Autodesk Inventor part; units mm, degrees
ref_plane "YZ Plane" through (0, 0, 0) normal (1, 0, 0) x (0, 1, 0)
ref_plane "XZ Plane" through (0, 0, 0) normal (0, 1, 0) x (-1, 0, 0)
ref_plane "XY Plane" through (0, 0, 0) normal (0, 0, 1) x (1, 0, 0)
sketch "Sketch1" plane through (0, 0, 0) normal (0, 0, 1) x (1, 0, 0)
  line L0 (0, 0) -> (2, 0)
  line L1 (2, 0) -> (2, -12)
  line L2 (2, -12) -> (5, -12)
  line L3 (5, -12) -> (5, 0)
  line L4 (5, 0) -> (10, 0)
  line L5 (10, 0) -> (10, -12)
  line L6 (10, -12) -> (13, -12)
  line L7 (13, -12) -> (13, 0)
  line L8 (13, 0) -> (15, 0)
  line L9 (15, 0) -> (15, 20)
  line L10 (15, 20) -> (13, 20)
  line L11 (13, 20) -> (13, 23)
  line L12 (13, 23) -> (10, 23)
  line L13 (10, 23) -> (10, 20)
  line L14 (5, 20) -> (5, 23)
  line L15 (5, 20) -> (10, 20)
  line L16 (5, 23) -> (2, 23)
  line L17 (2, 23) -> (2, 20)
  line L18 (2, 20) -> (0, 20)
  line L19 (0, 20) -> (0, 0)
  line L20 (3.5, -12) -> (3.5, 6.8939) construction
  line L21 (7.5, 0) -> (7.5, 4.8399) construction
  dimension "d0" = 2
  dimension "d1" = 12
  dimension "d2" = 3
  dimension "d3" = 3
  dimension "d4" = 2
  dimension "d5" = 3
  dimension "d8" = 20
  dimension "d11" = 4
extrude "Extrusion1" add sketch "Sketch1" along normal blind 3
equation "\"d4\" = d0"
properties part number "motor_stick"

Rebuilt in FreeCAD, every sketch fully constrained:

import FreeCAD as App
import Part
import Sketcher

doc = App.newDocument("Part")
body = doc.addObject("PartDesign::Body", "Body")

sketch1 = body.newObject("Sketcher::SketchObject", "Sketch")
sketch1.AttachmentSupport = (doc.getObject("XY_Plane"), [""])
sketch1.MapMode = "FlatFace"
sketch1.addGeometry([
    Part.LineSegment(App.Vector(0, 20, 0), App.Vector(0, 0, 0)),
    Part.LineSegment(App.Vector(0, 0, 0), App.Vector(2, 0, 0)),
    Part.LineSegment(App.Vector(2, 0, 0), App.Vector(2, -12, 0)),
    Part.LineSegment(App.Vector(2, -12, 0), App.Vector(5, -12, 0)),
    Part.LineSegment(App.Vector(5, -12, 0), App.Vector(5, 0, 0)),
    Part.LineSegment(App.Vector(5, 0, 0), App.Vector(10, 0, 0)),
    Part.LineSegment(App.Vector(10, 0, 0), App.Vector(10, -12, 0)),
    Part.LineSegment(App.Vector(10, -12, 0), App.Vector(13, -12, 0)),
    Part.LineSegment(App.Vector(13, -12, 0), App.Vector(13, 0, 0)),
    Part.LineSegment(App.Vector(13, 0, 0), App.Vector(15, 0, 0)),
    Part.LineSegment(App.Vector(15, 0, 0), App.Vector(15, 20, 0)),
    Part.LineSegment(App.Vector(15, 20, 0), App.Vector(13, 20, 0)),
    Part.LineSegment(App.Vector(13, 20, 0), App.Vector(13, 23, 0)),
    Part.LineSegment(App.Vector(13, 23, 0), App.Vector(10, 23, 0)),
    Part.LineSegment(App.Vector(10, 23, 0), App.Vector(10, 20, 0)),
    Part.LineSegment(App.Vector(10, 20, 0), App.Vector(5, 20, 0)),
    Part.LineSegment(App.Vector(5, 20, 0), App.Vector(5, 23, 0)),
    Part.LineSegment(App.Vector(5, 23, 0), App.Vector(2, 23, 0)),
    Part.LineSegment(App.Vector(2, 23, 0), App.Vector(2, 20, 0)),
    Part.LineSegment(App.Vector(2, 20, 0), App.Vector(0, 20, 0)),
], False)
sketch1.addConstraint([
    Sketcher.Constraint("Coincident", 0, 2, 1, 1),
    Sketcher.Constraint("Coincident", 1, 2, 2, 1),
    Sketcher.Constraint("Coincident", 2, 2, 3, 1),
    Sketcher.Constraint("Coincident", 3, 2, 4, 1),
    Sketcher.Constraint("Coincident", 4, 2, 5, 1),
    Sketcher.Constraint("Coincident", 5, 2, 6, 1),
    Sketcher.Constraint("Coincident", 6, 2, 7, 1),
    Sketcher.Constraint("Coincident", 7, 2, 8, 1),
    Sketcher.Constraint("Coincident", 8, 2, 9, 1),
    Sketcher.Constraint("Coincident", 9, 2, 10, 1),
    Sketcher.Constraint("Coincident", 10, 2, 11, 1),
    Sketcher.Constraint("Coincident", 11, 2, 12, 1),
    Sketcher.Constraint("Coincident", 12, 2, 13, 1),
    Sketcher.Constraint("Coincident", 13, 2, 14, 1),
    Sketcher.Constraint("Coincident", 14, 2, 15, 1),
    Sketcher.Constraint("Coincident", 15, 2, 16, 1),
    Sketcher.Constraint("Coincident", 16, 2, 17, 1),
    Sketcher.Constraint("Coincident", 17, 2, 18, 1),
    Sketcher.Constraint("Coincident", 18, 2, 19, 1),
    Sketcher.Constraint("Coincident", 19, 2, 0, 1),
    Sketcher.Constraint("Vertical", 0),
    Sketcher.Constraint("Horizontal", 1),
    Sketcher.Constraint("Vertical", 2),
    Sketcher.Constraint("Horizontal", 3),
    Sketcher.Constraint("Vertical", 4),
    Sketcher.Constraint("Horizontal", 5),
    Sketcher.Constraint("Vertical", 6),
    Sketcher.Constraint("Horizontal", 7),
    Sketcher.Constraint("Vertical", 8),
    Sketcher.Constraint("Horizontal", 9),
    Sketcher.Constraint("Vertical", 10),
    Sketcher.Constraint("Horizontal", 11),
    Sketcher.Constraint("Vertical", 12),
    Sketcher.Constraint("Horizontal", 13),
    Sketcher.Constraint("Vertical", 14),
    Sketcher.Constraint("Horizontal", 15),
    Sketcher.Constraint("Vertical", 16),
    Sketcher.Constraint("Horizontal", 17),
    Sketcher.Constraint("Vertical", 18),
    Sketcher.Constraint("Horizontal", 19),
    Sketcher.Constraint("Coincident", 0, 2, -1, 1),
    Sketcher.Constraint("PointOnObject", 4, 2, -1),
    Sketcher.Constraint("PointOnObject", 8, 2, -1),
    Sketcher.Constraint("Horizontal", 3, 2, 6, 2),
    Sketcher.Constraint("Horizontal", 11, 2, 14, 2),
    Sketcher.Constraint("Horizontal", 13, 2, 16, 2),
    Sketcher.Constraint("Horizontal", 15, 2, 18, 2),
    Sketcher.Constraint("Vertical", 8, 2, 11, 2),
    Sketcher.Constraint("Vertical", 6, 2, 13, 2),
    Sketcher.Constraint("Vertical", 4, 2, 15, 2),
    Sketcher.Constraint("Vertical", 2, 2, 17, 2),
    Sketcher.Constraint("Equal", 3, 7),
    Sketcher.Constraint("Equal", 1, 9),
    Sketcher.Constraint("Equal", 17, 12),
    Sketcher.Constraint("DistanceX", 1, 1, 1, 2, 2.0),
    Sketcher.Constraint("DistanceX", 3, 1, 3, 2, 3.0),
    Sketcher.Constraint("DistanceY", 0, 2, 0, 1, 20.0),
    Sketcher.Constraint("DistanceY", 2, 2, 2, 1, 12.0),
    Sketcher.Constraint("DistanceX", 5, 1, 5, 2, 5.0),
])
pad1 = body.newObject("PartDesign::Pad", "Pad")
pad1.Profile = sketch1
pad1.Length = 3

doc.recompute()
